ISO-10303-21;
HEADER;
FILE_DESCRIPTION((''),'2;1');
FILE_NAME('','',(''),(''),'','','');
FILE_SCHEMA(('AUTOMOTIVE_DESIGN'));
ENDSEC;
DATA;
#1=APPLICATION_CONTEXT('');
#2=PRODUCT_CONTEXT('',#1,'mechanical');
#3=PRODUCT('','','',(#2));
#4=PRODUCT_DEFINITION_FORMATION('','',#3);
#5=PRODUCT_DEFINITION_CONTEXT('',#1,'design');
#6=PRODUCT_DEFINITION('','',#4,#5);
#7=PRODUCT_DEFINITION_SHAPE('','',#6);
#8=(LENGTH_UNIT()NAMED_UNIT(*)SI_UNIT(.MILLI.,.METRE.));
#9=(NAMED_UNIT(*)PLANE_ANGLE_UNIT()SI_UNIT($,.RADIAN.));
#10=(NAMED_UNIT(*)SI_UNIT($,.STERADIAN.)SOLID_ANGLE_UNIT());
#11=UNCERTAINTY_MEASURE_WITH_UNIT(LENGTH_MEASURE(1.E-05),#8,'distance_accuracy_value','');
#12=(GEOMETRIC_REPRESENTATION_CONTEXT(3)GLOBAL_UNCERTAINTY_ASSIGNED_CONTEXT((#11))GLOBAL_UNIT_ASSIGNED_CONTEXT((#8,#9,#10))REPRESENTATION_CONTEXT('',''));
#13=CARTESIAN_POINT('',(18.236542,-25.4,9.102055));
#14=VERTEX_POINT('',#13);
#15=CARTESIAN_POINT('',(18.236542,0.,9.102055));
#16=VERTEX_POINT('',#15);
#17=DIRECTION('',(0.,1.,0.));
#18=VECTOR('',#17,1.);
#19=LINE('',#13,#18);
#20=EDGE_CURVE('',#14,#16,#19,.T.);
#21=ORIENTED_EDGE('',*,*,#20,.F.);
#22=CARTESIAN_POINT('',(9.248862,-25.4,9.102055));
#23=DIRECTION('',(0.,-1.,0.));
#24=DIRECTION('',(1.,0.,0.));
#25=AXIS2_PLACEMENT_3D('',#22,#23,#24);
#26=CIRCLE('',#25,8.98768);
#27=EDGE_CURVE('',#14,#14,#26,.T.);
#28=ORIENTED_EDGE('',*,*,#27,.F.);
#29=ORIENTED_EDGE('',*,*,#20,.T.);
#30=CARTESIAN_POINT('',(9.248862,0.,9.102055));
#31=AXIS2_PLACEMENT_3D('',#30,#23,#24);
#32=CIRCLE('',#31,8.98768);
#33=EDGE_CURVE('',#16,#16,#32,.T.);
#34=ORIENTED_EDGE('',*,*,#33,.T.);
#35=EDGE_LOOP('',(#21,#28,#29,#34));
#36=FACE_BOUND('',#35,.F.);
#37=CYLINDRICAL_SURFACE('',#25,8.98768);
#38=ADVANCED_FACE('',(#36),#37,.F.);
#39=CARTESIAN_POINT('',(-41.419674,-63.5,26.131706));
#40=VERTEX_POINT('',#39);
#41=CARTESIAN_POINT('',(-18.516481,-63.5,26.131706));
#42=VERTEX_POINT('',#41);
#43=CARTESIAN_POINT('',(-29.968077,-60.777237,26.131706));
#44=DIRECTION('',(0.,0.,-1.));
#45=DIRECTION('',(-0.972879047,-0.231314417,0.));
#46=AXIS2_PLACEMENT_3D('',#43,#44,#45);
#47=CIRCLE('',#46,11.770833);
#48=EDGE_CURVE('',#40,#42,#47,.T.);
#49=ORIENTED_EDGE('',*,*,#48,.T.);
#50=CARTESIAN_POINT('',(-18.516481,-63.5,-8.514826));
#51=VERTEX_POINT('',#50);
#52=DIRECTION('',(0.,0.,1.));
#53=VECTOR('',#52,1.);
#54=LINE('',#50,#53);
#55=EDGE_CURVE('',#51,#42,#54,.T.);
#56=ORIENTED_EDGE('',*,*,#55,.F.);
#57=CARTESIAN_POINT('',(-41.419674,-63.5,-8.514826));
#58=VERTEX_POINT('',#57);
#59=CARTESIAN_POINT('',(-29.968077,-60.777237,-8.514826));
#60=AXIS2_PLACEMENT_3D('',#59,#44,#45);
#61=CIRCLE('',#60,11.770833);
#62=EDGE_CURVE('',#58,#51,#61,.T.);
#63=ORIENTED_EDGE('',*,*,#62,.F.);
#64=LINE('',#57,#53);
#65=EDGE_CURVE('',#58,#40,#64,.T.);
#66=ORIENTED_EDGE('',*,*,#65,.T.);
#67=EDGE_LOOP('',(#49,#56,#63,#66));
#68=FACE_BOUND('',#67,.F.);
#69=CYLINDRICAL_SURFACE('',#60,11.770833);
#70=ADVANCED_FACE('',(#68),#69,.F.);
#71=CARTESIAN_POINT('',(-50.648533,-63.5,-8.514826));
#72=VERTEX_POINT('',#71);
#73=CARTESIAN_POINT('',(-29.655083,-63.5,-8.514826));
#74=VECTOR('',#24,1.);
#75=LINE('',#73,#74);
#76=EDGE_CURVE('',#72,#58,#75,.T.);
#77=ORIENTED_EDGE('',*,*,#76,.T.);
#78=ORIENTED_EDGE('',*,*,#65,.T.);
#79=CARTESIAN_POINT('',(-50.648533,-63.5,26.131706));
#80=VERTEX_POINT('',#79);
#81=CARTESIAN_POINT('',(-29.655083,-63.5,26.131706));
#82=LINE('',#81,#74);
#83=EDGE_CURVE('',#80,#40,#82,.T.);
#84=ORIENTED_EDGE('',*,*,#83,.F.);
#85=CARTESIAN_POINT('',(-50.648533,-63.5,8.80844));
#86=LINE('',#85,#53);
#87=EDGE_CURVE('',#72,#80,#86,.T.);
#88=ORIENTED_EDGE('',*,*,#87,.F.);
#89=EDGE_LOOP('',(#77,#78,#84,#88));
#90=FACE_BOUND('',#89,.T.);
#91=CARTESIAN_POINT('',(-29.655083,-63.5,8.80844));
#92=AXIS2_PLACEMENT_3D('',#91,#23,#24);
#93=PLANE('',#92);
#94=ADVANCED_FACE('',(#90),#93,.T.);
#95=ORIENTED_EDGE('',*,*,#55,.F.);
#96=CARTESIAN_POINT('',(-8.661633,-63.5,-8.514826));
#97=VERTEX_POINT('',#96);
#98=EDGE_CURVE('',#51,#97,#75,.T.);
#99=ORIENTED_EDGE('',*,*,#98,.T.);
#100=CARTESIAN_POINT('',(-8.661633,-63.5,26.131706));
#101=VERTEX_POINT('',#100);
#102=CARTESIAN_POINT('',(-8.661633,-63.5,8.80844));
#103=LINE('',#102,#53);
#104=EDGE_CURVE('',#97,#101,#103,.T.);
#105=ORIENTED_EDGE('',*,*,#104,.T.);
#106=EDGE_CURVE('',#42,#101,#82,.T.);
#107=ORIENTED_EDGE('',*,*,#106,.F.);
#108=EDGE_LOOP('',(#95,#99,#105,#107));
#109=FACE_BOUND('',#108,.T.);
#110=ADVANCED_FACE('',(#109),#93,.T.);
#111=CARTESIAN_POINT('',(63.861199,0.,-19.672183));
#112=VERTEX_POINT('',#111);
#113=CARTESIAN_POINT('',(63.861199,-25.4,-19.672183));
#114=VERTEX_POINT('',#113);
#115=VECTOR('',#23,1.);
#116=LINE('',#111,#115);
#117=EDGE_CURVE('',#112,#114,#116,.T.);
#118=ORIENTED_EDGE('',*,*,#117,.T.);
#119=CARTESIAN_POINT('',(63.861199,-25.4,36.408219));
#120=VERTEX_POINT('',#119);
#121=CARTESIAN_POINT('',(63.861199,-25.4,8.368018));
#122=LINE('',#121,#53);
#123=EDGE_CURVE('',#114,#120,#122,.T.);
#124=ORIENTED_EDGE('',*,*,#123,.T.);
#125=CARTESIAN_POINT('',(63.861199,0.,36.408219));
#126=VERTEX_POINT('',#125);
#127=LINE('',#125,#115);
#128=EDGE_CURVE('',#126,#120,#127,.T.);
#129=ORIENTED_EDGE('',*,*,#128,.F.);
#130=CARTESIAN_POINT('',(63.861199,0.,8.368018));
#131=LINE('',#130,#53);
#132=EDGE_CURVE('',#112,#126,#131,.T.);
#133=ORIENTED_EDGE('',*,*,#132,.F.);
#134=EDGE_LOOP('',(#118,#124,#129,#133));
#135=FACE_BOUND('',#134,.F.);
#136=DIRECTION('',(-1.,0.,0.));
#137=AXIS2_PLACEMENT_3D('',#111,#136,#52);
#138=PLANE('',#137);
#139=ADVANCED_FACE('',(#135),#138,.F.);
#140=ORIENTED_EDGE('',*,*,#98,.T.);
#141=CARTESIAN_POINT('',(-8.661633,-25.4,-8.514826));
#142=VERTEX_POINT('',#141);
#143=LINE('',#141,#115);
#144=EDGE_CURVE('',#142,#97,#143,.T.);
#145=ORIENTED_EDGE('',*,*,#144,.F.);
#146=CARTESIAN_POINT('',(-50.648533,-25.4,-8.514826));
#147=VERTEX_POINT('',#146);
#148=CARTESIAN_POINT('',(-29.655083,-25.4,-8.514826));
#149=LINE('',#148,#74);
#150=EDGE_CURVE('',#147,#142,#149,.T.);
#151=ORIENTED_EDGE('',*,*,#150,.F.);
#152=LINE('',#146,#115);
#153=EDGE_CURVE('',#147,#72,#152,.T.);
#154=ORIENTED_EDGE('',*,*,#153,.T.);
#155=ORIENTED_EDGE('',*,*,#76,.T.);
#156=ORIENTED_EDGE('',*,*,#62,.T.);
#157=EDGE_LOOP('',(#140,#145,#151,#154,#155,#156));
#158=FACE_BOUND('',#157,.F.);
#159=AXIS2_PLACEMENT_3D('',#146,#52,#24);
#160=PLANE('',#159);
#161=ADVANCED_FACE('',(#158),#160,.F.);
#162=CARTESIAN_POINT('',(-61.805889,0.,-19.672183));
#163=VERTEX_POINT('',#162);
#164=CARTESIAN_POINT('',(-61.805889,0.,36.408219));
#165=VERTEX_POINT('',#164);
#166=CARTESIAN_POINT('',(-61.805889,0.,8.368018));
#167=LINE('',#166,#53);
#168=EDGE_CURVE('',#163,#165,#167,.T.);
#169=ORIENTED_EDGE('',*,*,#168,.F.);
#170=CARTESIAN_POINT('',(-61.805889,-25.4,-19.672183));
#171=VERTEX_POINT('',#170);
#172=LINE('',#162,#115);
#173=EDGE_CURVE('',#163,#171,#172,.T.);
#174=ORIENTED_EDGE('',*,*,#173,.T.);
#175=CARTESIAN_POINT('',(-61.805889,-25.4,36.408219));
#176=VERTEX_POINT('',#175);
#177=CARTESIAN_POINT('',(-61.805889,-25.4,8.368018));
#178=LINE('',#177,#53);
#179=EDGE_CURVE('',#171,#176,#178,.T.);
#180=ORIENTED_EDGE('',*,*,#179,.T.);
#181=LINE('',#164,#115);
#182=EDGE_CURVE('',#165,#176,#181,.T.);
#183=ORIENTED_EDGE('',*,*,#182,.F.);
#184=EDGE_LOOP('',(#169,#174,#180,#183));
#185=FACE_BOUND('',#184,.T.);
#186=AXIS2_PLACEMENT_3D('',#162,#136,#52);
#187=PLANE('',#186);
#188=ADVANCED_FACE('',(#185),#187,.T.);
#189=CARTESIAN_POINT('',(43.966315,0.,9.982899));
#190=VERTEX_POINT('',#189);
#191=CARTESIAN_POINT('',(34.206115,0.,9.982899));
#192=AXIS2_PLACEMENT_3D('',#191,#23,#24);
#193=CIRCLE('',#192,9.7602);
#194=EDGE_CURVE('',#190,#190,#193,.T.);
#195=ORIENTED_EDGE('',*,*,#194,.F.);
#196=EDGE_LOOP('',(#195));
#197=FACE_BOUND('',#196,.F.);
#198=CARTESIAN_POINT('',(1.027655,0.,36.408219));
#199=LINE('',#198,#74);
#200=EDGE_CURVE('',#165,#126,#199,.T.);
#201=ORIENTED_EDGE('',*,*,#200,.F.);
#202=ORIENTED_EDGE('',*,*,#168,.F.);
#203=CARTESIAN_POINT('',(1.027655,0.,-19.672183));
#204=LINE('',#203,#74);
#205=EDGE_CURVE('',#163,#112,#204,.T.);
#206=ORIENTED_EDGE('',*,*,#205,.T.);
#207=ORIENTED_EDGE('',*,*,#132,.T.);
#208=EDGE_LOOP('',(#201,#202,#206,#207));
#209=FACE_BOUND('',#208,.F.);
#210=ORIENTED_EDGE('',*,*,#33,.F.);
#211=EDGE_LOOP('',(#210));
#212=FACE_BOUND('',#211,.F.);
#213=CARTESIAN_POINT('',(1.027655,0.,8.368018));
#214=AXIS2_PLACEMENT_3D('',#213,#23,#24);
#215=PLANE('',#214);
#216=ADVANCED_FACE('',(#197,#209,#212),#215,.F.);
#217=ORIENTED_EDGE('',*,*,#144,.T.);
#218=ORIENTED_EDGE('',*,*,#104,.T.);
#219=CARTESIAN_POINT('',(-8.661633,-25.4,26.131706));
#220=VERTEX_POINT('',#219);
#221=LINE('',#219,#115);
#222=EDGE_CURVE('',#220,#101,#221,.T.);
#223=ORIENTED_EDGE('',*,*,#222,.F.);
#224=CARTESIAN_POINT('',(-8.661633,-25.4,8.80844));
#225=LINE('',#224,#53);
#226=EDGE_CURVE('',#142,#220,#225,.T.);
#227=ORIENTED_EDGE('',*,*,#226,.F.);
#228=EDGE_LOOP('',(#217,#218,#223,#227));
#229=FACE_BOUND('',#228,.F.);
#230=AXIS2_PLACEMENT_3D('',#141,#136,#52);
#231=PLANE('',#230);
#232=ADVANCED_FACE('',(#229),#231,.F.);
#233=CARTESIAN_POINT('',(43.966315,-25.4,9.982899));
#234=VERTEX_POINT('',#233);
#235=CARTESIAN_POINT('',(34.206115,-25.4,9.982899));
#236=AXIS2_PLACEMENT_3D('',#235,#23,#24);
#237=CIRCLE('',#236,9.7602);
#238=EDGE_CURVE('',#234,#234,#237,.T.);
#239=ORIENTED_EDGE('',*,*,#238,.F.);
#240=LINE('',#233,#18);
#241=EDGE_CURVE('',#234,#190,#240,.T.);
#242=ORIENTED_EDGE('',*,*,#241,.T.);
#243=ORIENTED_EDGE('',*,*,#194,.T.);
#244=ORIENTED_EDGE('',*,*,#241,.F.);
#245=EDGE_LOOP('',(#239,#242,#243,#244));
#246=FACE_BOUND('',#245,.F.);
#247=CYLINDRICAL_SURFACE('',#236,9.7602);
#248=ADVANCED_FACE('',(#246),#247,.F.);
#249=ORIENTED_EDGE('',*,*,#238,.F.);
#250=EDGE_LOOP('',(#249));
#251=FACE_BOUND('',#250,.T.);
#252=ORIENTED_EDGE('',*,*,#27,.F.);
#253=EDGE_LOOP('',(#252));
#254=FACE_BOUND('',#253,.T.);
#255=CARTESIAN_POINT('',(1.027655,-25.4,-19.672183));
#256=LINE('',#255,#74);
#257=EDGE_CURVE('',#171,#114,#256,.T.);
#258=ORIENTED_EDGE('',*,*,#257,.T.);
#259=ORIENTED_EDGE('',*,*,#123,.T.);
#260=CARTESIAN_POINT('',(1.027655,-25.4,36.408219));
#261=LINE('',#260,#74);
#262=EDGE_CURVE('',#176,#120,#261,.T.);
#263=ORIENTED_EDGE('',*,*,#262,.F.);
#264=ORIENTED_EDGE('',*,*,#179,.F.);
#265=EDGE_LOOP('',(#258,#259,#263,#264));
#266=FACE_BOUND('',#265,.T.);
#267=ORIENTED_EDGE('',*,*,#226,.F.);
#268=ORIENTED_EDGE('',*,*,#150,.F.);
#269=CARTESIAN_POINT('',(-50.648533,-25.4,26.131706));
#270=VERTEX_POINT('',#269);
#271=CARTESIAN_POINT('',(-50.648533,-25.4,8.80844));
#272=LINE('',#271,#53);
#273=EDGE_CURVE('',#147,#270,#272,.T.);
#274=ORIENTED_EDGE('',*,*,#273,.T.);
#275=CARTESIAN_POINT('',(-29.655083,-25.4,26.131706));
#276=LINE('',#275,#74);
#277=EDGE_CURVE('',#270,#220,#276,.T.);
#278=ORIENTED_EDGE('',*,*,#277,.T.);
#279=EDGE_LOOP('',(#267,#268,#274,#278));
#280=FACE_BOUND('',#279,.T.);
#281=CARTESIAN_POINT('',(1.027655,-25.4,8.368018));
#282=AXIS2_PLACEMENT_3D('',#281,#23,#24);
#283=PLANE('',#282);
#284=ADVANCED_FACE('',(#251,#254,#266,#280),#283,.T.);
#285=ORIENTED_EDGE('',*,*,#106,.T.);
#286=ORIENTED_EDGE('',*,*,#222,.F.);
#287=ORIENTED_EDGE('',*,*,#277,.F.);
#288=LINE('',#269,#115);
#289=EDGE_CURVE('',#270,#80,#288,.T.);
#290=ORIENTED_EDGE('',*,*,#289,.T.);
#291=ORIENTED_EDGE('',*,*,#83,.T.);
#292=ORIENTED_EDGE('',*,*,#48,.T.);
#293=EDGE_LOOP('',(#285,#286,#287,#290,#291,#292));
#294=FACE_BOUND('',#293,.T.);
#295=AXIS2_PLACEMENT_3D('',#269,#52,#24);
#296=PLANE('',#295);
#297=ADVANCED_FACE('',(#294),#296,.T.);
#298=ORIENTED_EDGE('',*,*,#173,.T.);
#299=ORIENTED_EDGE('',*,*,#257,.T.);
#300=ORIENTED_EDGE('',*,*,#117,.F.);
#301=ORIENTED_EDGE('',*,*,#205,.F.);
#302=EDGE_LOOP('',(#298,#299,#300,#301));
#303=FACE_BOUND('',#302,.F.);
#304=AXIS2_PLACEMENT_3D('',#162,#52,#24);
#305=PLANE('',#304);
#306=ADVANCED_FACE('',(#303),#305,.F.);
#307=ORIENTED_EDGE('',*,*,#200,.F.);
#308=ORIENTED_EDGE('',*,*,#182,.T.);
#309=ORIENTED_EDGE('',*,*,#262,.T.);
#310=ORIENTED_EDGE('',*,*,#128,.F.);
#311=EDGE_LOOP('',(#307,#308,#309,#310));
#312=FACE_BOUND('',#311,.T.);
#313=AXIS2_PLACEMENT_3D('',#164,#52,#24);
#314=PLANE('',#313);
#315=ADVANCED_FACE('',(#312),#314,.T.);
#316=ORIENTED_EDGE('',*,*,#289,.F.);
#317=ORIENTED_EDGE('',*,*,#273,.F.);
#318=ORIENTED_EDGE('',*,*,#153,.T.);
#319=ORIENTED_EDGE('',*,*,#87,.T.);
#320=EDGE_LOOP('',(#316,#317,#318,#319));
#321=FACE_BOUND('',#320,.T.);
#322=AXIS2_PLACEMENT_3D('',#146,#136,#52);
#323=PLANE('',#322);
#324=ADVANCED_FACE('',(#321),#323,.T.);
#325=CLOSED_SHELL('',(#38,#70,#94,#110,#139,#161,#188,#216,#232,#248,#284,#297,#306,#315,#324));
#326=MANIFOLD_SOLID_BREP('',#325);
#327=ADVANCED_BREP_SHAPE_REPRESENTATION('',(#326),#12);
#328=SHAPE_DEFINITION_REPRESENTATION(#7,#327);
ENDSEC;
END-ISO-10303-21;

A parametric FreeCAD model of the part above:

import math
import FreeCAD as App
import Part
import Sketcher
Q = App.Units.Quantity


def add_polygon(sketch, points):
    """Adds a closed chain of lines whose ends are joined by coincident constraints."""
    first, n = sketch.GeometryCount, len(points)
    for a, b in zip(points, points[1:] + points[:1]):
        sketch.addGeometry(Part.LineSegment(App.Vector(*a, 0), App.Vector(*b, 0)), False)
    for i in range(n):
        sketch.addConstraint(Sketcher.Constraint("Coincident", first + i, 2, first + (i + 1) % n, 1))

doc = App.newDocument("Part")
body = doc.addObject("PartDesign::Body", "Body")

# Sketch on XZ plane
sketch1 = doc.addObject("Sketcher::SketchObject", "Sketch")
body.addObject(sketch1)
sketch1.AttachmentSupport = (doc.XZ_Plane, [""])
sketch1.MapMode = "FlatFace"
add_polygon(sketch1, [(-62, 36), (-62, -20), (64, -20), (64, 36)])  # lines 0-3
sketch1.addConstraint([
    Sketcher.Constraint("Vertical", 0),
    Sketcher.Constraint("Horizontal", 1),
    Sketcher.Constraint("Vertical", 2),
    Sketcher.Constraint("Horizontal", 3),
    Sketcher.Constraint("DistanceX", 1, 1, 1, 2, Q("125.667088 mm")),
    Sketcher.Constraint("DistanceX", -1, 1, 1, 2, Q("63.861199 mm")),
    Sketcher.Constraint("DistanceY", 0, 2, 0, 1, Q("56.080402 mm")),
    Sketcher.Constraint("DistanceY", -1, 1, 2, 2, Q("36.408219 mm")),
])
pad1 = doc.addObject("PartDesign::Pad", "Pad")
body.addObject(pad1)
pad1.Profile = sketch1
pad1.Length = Q("1 in")

# Sketch on XZ plane
sketch2 = doc.addObject("Sketcher::SketchObject", "Sketch001")
body.addObject(sketch2)
sketch2.AttachmentSupport = (doc.XZ_Plane, [""])
sketch2.MapMode = "FlatFace"
sketch2.AttachmentOffset = App.Placement(App.Vector(0, 0, 1 * 25.4), App.Rotation())
add_polygon(sketch2, [(-51, 26), (-51, -9), (-9, -9), (-9, 26)])  # lines 0-3
sketch2.addConstraint([
    Sketcher.Constraint("Vertical", 0),
    Sketcher.Constraint("Horizontal", 1),
    Sketcher.Constraint("Vertical", 2),
    Sketcher.Constraint("Horizontal", 3),
    Sketcher.Constraint("DistanceX", 1, 1, 1, 2, Q("41.9869 mm")),
    Sketcher.Constraint("DistanceY", 0, 2, 0, 1, Q("34.646532 mm")),
    Sketcher.Constraint("DistanceX", 0, 2, -1, 1, Q("50.648533 mm")),
    Sketcher.Constraint("DistanceY", 0, 2, -1, 1, Q("8.514826 mm")),
])
pad2 = doc.addObject("PartDesign::Pad", "Pad001")
body.addObject(pad2)
pad2.Profile = sketch2
pad2.Length = Q("1.5 in")

# Sketch on XY plane
sketch3 = doc.addObject("Sketcher::SketchObject", "Sketch002")
body.addObject(sketch3)
sketch3.AttachmentSupport = (doc.XY_Plane, [""])
sketch3.MapMode = "FlatFace"
sketch3.AttachmentOffset = App.Placement(App.Vector(0, 0, -8.514826), App.Rotation())
sketch3.addGeometry([
    Part.LineSegment(App.Vector(-19, -64, 0), App.Vector(-41, -64, 0)),
    Part.ArcOfCircle(Part.Circle(App.Vector(-30, -61, 0), App.Vector(0, 0, 1), 12), math.radians(-13), math.radians(193)),
], False)
sketch3.addConstraint([
    Sketcher.Constraint("Coincident", 0, 1, 1, 1),
    Sketcher.Constraint("Coincident", 1, 2, 0, 2),
    Sketcher.Constraint("Horizontal", 0),
    Sketcher.Constraint("DistanceY", 0, 1, -1, 1, Q("2.5 in")),
    Sketcher.Constraint("Radius", 1, Q("11.770833 mm")),
    Sketcher.Constraint("DistanceX", 0, 2, 0, 1, Q("22.903193 mm")),
    Sketcher.Constraint("DistanceX", 0, 1, -1, 1, Q("18.516481 mm")),
])
pocket1 = doc.addObject("PartDesign::Pocket", "Pocket")
body.addObject(pocket1)
pocket1.Profile = sketch3
pocket1.Length = Q("2 in")
pocket1.Reversed = True

# Sketch on XZ plane
sketch4 = doc.addObject("Sketcher::SketchObject", "Sketch003")
body.addObject(sketch4)
sketch4.AttachmentSupport = (doc.XZ_Plane, [""])
sketch4.MapMode = "FlatFace"
sketch4.AttachmentOffset = App.Placement(App.Vector(0, 0, 1 * 25.4), App.Rotation())
sketch4.addGeometry([
    Part.Circle(App.Vector(9, 9, 0), App.Vector(0, 0, 1), 9),
    Part.Circle(App.Vector(34, 10, 0), App.Vector(0, 0, 1), 10),
], False)
sketch4.addConstraint([
    Sketcher.Constraint("Diameter", 1, Q("19.5204 mm")),
    Sketcher.Constraint("Diameter", 0, Q("17.97536 mm")),
    Sketcher.Constraint("DistanceY", -1, 1, 1, 3, Q("9.982899 mm")),
    Sketcher.Constraint("DistanceX", -1, 1, 0, 3, Q("9.248862 mm")),
    Sketcher.Constraint("DistanceY", -1, 1, 0, 3, Q("9.102055 mm")),
    Sketcher.Constraint("DistanceX", -1, 1, 1, 3, Q("34.206115 mm")),
])
pocket2 = doc.addObject("PartDesign::Pocket", "Pocket001")
body.addObject(pocket2)
pocket2.Profile = sketch4
pocket2.Length = Q("2 in")

doc.recompute()
